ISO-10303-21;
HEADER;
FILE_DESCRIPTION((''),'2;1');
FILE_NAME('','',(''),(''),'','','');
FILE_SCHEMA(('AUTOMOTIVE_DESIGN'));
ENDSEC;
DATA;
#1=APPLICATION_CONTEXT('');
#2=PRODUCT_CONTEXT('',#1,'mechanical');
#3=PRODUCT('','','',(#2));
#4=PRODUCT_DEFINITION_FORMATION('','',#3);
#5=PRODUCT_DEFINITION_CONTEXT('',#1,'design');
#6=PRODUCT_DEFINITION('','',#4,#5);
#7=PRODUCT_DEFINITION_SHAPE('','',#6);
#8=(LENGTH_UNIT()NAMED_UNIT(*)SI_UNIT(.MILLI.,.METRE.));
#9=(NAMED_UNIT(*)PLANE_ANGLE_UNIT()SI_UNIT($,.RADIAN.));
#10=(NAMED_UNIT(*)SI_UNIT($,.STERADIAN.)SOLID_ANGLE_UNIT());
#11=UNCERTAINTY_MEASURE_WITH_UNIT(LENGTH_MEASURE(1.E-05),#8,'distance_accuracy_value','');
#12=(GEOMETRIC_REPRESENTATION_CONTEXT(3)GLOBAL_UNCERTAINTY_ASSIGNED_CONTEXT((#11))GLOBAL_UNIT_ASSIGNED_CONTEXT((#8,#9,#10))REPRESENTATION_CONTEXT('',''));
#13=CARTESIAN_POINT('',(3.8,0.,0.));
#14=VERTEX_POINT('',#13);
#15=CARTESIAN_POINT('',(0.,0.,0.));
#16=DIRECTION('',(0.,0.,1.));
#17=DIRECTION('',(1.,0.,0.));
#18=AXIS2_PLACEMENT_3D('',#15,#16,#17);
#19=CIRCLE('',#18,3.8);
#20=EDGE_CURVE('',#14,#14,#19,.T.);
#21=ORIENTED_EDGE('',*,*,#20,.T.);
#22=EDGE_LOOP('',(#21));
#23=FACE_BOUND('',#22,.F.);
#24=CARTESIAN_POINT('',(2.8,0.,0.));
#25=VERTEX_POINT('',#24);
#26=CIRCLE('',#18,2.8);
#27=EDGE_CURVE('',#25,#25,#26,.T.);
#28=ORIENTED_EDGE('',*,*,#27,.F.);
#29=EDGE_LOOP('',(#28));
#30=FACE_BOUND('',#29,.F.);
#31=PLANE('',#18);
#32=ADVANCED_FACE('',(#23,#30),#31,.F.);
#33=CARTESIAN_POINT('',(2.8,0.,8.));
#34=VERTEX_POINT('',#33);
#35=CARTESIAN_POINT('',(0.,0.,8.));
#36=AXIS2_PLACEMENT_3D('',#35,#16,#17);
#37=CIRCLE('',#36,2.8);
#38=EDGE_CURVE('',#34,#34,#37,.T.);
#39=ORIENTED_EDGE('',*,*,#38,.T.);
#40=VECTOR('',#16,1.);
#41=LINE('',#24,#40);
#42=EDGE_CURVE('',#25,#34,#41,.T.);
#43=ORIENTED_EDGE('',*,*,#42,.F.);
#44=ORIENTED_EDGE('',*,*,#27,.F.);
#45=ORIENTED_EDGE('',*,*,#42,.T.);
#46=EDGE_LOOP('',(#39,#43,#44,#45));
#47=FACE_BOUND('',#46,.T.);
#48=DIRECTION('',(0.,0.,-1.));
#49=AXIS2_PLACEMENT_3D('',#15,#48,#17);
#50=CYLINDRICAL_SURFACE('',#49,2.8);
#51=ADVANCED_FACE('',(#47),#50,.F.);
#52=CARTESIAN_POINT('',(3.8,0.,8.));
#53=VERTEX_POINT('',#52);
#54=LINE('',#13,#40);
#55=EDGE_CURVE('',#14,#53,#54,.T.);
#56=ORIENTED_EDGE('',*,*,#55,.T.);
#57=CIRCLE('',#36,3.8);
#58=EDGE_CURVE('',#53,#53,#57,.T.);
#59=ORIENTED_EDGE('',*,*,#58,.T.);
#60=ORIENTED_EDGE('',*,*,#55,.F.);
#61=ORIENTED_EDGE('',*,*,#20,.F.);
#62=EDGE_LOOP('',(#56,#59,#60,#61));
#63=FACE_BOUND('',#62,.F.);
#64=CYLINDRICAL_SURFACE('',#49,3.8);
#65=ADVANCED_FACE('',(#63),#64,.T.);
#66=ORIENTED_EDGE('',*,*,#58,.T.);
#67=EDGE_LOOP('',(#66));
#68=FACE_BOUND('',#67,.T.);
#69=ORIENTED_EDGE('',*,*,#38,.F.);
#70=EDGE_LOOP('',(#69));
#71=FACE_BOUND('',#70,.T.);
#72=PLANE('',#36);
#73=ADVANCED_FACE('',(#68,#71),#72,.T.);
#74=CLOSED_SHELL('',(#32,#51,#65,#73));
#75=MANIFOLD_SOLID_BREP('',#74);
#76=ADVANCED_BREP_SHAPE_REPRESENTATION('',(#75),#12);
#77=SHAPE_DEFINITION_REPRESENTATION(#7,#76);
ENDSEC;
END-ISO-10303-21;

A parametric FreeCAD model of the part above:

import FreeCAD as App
import Part
import Sketcher
Q = App.Units.Quantity

doc = App.newDocument("Part")
body = doc.addObject("PartDesign::Body", "Body")

sketch1 = body.newObject("Sketcher::SketchObject", "Sketch")
sketch1.AttachmentSupport = (doc.getObject("XY_Plane"), [""])
sketch1.MapMode = "FlatFace"
sketch1.addGeometry(Part.Circle(App.Vector(0, 0, 0), App.Vector(0, 0, 1), 3.8), False)
sketch1.addGeometry(Part.Circle(App.Vector(0, 0, 0), App.Vector(0, 0, 1), 2.8), False)
sketch1.addConstraint(Sketcher.Constraint("Coincident", 0, 3, -1, 1))
sketch1.addConstraint(Sketcher.Constraint("Coincident", 1, 3, -1, 1))
sketch1.addConstraint(Sketcher.Constraint("Diameter", 0, Q("7.6 mm")))
sketch1.addConstraint(Sketcher.Constraint("Diameter", 1, Q("5.6 mm")))
pad1 = body.newObject("PartDesign::Pad", "Pad")
pad1.Profile = sketch1
pad1.Length = 8

doc.recompute()
